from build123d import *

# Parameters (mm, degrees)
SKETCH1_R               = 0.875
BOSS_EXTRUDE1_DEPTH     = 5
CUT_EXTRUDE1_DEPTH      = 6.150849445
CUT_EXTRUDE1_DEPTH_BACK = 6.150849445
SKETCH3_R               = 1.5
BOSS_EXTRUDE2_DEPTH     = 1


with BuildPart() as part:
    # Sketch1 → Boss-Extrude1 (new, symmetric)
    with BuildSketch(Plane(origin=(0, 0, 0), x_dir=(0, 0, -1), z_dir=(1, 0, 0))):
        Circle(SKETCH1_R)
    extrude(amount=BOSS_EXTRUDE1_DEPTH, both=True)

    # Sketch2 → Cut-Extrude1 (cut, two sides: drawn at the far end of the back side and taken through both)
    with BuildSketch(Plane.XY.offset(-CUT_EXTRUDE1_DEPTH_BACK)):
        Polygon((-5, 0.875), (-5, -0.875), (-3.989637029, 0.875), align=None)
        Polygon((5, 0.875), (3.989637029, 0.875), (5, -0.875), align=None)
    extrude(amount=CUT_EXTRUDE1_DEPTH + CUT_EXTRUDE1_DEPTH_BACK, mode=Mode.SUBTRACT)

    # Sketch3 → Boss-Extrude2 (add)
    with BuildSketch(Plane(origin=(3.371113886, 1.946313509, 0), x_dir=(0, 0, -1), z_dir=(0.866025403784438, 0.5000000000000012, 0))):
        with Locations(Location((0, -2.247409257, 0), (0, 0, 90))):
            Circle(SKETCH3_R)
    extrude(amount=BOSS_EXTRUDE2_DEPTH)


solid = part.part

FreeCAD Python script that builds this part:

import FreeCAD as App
import Part
import Sketcher

V = App.Vector
Q = App.Units.Quantity

doc = App.newDocument("Part")
body = doc.addObject("PartDesign::Body", "Body")

# Sketch on YZ plane
sketch1 = body.newObject("Sketcher::SketchObject", "Sketch")
sketch1.AttachmentSupport = (doc.getObject("YZ_Plane"), [""])
sketch1.MapMode = "FlatFace"
sketch1.addGeometry(Part.Circle(V(0, 0, 0), V(0, 0, 1), 0.9), False)
sketch1.addConstraint(Sketcher.Constraint("Coincident", 0, 3, -1, 1))
sketch1.addConstraint(Sketcher.Constraint("Diameter", 0, 1.75))
pad1 = body.newObject("PartDesign::Pad", "Pad")
pad1.Profile = sketch1
pad1.Length = 10
pad1.Midplane = True

# Sketch on XY plane
sketch2 = body.newObject("Sketcher::SketchObject", "Sketch001")
sketch2.AttachmentSupport = (doc.getObject("XY_Plane"), [""])
sketch2.MapMode = "FlatFace"
sketch2.addGeometry(Part.LineSegment(V(-5, 0.9, 0), V(-5, -0.9, 0)), False)
sketch2.addGeometry(Part.LineSegment(V(-5, -0.9, 0), V(-4, 0.9, 0)), False)
sketch2.addGeometry(Part.LineSegment(V(-4, 0.9, 0), V(-5, 0.9, 0)), False)
sketch2.addGeometry(Part.LineSegment(V(5, 0.9, 0), V(4, 0.9, 0)), False)
sketch2.addGeometry(Part.LineSegment(V(4, 0.9, 0), V(5, -0.9, 0)), False)
sketch2.addGeometry(Part.LineSegment(V(5, -0.9, 0), V(5, 0.9, 0)), False)
sketch2.addConstraint(Sketcher.Constraint("Coincident", 0, 2, 1, 1))
sketch2.addConstraint(Sketcher.Constraint("Coincident", 1, 2, 2, 1))
sketch2.addConstraint(Sketcher.Constraint("Coincident", 2, 2, 0, 1))
sketch2.addConstraint(Sketcher.Constraint("Coincident", 3, 2, 4, 1))
sketch2.addConstraint(Sketcher.Constraint("Coincident", 4, 2, 5, 1))
sketch2.addConstraint(Sketcher.Constraint("Coincident", 5, 2, 3, 1))
sketch2.addConstraint(Sketcher.Constraint("Vertical", 0))
sketch2.addConstraint(Sketcher.Constraint("Horizontal", 2))
sketch2.addConstraint(Sketcher.Constraint("Horizontal", 3))
sketch2.addConstraint(Sketcher.Constraint("Vertical", 5))
sketch2.addConstraint(Sketcher.Constraint("Symmetric", 2, 2, 4, 2, -1, 1))
sketch2.addConstraint(Sketcher.Constraint("Symmetric", 1, 2, 3, 2, -2))
sketch2.addConstraint(Sketcher.Constraint("Horizontal", 0, 2, 4, 2))
sketch2.addConstraint(Sketcher.Constraint("Angle", 1, Q("60 deg")))
sketch2.addConstraint(Sketcher.Constraint("DistanceX", 0, 2, -1, 1, 5.0))
sketch2.addConstraint(Sketcher.Constraint("DistanceY", 0, 2, 0, 1, 1.75))
pocket1 = body.newObject("PartDesign::Pocket", "Pocket")
pocket1.Profile = sketch2
pocket1.Type = "ThroughAll"
pocket1.Midplane = True

# Sketch on an angled plane
sketch3 = body.newObject("Sketcher::SketchObject", "Sketch002")
sketch3.Placement = App.Placement(V(3.371114, 1.946314, 0), App.Rotation(V(0, 0, -1), V(-0.5, 0.866025404, 0), V(0.866025404, 0.5, 0), "ZXY"))
sketch3.addGeometry(Part.Circle(V(0, -2.2, 0), V(0, 0, 1), 1.5), False)
sketch3.addConstraint(Sketcher.Constraint("PointOnObject", 0, 3, -2))
sketch3.addConstraint(Sketcher.Constraint("Diameter", 0, 3.0))
sketch3.addConstraint(Sketcher.Constraint("DistanceY", 0, 3, -1, 1, 2.247409))
pad2 = body.newObject("PartDesign::Pad", "Pad001")
pad2.Profile = sketch3
pad2.Length = 1

doc.recompute()
